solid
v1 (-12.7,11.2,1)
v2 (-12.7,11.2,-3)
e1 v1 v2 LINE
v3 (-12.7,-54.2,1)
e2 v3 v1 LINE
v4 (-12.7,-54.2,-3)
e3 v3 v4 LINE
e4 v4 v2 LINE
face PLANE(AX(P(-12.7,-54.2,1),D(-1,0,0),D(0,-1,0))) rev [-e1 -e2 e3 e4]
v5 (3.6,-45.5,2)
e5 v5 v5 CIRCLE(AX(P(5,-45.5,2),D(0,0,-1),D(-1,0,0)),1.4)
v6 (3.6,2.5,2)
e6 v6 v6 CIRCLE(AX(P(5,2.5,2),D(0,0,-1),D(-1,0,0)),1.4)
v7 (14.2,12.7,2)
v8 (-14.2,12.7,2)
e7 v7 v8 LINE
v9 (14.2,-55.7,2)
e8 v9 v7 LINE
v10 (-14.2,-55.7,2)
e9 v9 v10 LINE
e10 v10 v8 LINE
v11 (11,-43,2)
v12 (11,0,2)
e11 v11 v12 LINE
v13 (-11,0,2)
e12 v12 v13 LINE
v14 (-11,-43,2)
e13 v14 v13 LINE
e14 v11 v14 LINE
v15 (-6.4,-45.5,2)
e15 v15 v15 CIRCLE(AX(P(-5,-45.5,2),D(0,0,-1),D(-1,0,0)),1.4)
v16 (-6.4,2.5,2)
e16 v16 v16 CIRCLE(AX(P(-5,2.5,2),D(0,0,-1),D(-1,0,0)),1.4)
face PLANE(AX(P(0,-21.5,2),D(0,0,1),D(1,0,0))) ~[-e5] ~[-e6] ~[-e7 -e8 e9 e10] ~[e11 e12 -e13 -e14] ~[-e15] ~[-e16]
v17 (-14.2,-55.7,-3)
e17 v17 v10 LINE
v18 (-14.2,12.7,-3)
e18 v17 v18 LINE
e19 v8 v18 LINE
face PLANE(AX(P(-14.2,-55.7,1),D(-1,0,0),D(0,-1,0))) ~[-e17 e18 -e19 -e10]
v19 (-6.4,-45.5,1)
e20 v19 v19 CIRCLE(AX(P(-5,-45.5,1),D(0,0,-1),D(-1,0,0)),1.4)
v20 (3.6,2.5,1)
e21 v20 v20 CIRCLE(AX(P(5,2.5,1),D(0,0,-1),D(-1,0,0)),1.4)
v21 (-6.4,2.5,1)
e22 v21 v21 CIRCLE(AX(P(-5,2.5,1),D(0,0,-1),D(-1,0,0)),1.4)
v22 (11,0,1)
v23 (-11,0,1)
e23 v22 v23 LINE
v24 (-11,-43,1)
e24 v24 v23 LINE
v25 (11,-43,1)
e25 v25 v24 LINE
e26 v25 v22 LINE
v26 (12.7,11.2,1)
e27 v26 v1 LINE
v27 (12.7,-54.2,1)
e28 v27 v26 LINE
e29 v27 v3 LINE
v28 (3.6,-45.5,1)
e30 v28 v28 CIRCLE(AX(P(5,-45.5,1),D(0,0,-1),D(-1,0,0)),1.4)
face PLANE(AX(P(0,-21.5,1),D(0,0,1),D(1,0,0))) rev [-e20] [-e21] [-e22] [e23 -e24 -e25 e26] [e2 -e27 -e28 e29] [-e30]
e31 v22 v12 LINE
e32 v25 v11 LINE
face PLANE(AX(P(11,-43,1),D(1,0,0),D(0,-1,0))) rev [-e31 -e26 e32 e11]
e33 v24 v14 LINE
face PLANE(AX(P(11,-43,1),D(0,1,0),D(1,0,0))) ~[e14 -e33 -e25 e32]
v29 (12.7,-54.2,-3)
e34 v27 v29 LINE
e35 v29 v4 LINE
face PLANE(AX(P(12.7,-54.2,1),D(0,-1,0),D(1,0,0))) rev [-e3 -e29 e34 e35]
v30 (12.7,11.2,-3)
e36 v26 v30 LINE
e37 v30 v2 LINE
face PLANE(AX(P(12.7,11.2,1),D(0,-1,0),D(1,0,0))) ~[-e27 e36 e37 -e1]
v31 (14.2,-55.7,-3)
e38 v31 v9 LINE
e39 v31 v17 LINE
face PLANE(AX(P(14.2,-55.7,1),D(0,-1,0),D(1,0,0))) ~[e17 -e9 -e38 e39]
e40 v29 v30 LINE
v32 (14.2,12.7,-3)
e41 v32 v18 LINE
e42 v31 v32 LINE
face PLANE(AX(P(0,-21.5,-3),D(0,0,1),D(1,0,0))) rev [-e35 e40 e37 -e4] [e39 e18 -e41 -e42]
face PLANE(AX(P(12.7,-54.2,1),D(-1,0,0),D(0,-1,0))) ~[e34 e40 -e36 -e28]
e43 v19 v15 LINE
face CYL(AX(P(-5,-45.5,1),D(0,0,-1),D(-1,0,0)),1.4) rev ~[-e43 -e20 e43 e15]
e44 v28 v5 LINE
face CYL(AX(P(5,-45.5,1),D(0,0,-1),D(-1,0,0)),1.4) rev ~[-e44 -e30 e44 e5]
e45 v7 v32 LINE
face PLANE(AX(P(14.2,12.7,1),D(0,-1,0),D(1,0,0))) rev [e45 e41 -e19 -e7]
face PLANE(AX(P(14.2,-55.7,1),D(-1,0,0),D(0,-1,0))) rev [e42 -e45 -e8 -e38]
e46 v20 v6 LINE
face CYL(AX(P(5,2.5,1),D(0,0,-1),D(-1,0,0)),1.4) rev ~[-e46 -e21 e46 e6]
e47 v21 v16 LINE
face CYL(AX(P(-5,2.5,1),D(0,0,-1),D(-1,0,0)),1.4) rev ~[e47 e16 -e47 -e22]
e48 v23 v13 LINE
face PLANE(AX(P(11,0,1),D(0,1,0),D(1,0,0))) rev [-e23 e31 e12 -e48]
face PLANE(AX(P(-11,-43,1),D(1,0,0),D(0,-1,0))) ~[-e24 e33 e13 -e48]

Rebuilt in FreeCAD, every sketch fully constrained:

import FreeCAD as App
import Part
import Sketcher
from FreeCAD import Vector

doc = App.newDocument("Part")
body = doc.addObject("PartDesign::Body", "Body")

# Sketch on XY plane
sketch1 = doc.addObject("Sketcher::SketchObject", "Sketch")
body.addObject(sketch1)
sketch1.AttachmentSupport = (doc.XY_Plane, [""])
sketch1.MapMode = "FlatFace"
sketch1.AttachmentOffset = App.Placement(Vector(0, 0, -5), App.Rotation())
sketch1.addGeometry(Part.Circle(Vector(-5, 2.5, 0), Vector(0, 0, 1), 1.4), False)
sketch1.addConstraint([
    Sketcher.Constraint("Diameter", 0, 2.8),
    Sketcher.Constraint("DistanceX", 0, 3, -1, 1, 5.0),
    Sketcher.Constraint("DistanceY", -1, 1, 0, 3, 2.5),
])
pad1 = doc.addObject("PartDesign::Pad", "Pad")
body.addObject(pad1)
pad1.Profile = sketch1
pad1.Length = 10
body2 = doc.addObject("PartDesign::Body", "Body001")

# Sketch on XY plane
sketch2 = doc.addObject("Sketcher::SketchObject", "Sketch001")
body2.addObject(sketch2)
sketch2.AttachmentSupport = (doc.getObject("XY_Plane001"), [""])
sketch2.MapMode = "FlatFace"
sketch2.AttachmentOffset = App.Placement(Vector(0, 0, 1), App.Rotation())
sketch2.addGeometry([
    Part.LineSegment(Vector(-14.2, 12.7, 0), Vector(-14.2, -55.7, 0)),  # 0
    Part.LineSegment(Vector(-14.2, -55.7, 0), Vector(14.2, -55.7, 0)),  # 1
    Part.LineSegment(Vector(14.2, -55.7, 0), Vector(14.2, 12.7, 0)),  # 2
    Part.LineSegment(Vector(14.2, 12.7, 0), Vector(-14.2, 12.7, 0)),  # 3
    Part.LineSegment(Vector(12.7, -54.2, 0), Vector(-12.7, -54.2, 0)),  # 4
    Part.LineSegment(Vector(-12.7, -54.2, 0), Vector(-12.7, 11.2, 0)),  # 5
    Part.LineSegment(Vector(-12.7, 11.2, 0), Vector(12.7, 11.2, 0)),  # 6
    Part.LineSegment(Vector(12.7, 11.2, 0), Vector(12.7, -54.2, 0)),  # 7
], False)
sketch2.addConstraint([
    Sketcher.Constraint("Coincident", 0, 2, 1, 1),
    Sketcher.Constraint("Coincident", 1, 2, 2, 1),
    Sketcher.Constraint("Coincident", 2, 2, 3, 1),
    Sketcher.Constraint("Coincident", 3, 2, 0, 1),
    Sketcher.Constraint("Coincident", 4, 2, 5, 1),
    Sketcher.Constraint("Coincident", 5, 2, 6, 1),
    Sketcher.Constraint("Coincident", 6, 2, 7, 1),
    Sketcher.Constraint("Coincident", 7, 2, 4, 1),
    Sketcher.Constraint("Vertical", 0),
    Sketcher.Constraint("Horizontal", 1),
    Sketcher.Constraint("Vertical", 2),
    Sketcher.Constraint("Horizontal", 3),
    Sketcher.Constraint("Horizontal", 4),
    Sketcher.Constraint("Vertical", 5),
    Sketcher.Constraint("Horizontal", 6),
    Sketcher.Constraint("Vertical", 7),
    Sketcher.Constraint("DistanceX", 1, 1, 1, 2, 28.4),
    Sketcher.Constraint("DistanceX", 4, 2, 4, 1, 25.4),
    Sketcher.Constraint("DistanceY", 0, 2, 0, 1, 68.4),
    Sketcher.Constraint("DistanceY", 5, 1, 5, 2, 65.4),
    Sketcher.Constraint("DistanceX", 0, 2, -1, 1, 14.2),
    Sketcher.Constraint("DistanceY", 0, 2, -1, 1, 55.7),
    Sketcher.Constraint("DistanceX", 4, 2, -1, 1, 12.7),
    Sketcher.Constraint("DistanceY", 4, 2, -1, 1, 54.2),
])
pad2 = doc.addObject("PartDesign::Pad", "Pad001")
body2.addObject(pad2)
pad2.Profile = sketch2
pad2.Length = 4
pad2.Reversed = True
body3 = doc.addObject("PartDesign::Body", "Body002")

# Sketch on XY plane
sketch3 = doc.addObject("Sketcher::SketchObject", "Sketch002")
body3.addObject(sketch3)
sketch3.AttachmentSupport = (doc.getObject("XY_Plane002"), [""])
sketch3.MapMode = "FlatFace"
sketch3.AttachmentOffset = App.Placement(Vector(0, 0, 1), App.Rotation())
sketch3.addGeometry([
    Part.LineSegment(Vector(-14.2, 12.7, 0), Vector(-14.2, -55.7, 0)),  # 0
    Part.LineSegment(Vector(-14.2, -55.7, 0), Vector(14.2, -55.7, 0)),  # 1
    Part.LineSegment(Vector(14.2, -55.7, 0), Vector(14.2, 12.7, 0)),  # 2
    Part.LineSegment(Vector(14.2, 12.7, 0), Vector(-14.2, 12.7, 0)),  # 3
    Part.Circle(Vector(-5, -45.5, 0), Vector(0, 0, 1), 1.4),  # 4
    Part.Circle(Vector(5, -45.5, 0), Vector(0, 0, 1), 1.4),  # 5
    Part.LineSegment(Vector(11, -43, 0), Vector(-11, -43, 0)),  # 6
    Part.LineSegment(Vector(-11, -43, 0), Vector(-11, 0, 0)),  # 7
    Part.LineSegment(Vector(-11, 0, 0), Vector(11, 0, 0)),  # 8
    Part.LineSegment(Vector(11, 0, 0), Vector(11, -43, 0)),  # 9
    Part.Circle(Vector(-5, 2.5, 0), Vector(0, 0, 1), 1.4),  # 10
    Part.Circle(Vector(5, 2.5, 0), Vector(0, 0, 1), 1.4),  # 11
], False)
sketch3.addConstraint([
    Sketcher.Constraint("Coincident", 0, 2, 1, 1),
    Sketcher.Constraint("Coincident", 1, 2, 2, 1),
    Sketcher.Constraint("Coincident", 2, 2, 3, 1),
    Sketcher.Constraint("Coincident", 3, 2, 0, 1),
    Sketcher.Constraint("Coincident", 6, 2, 7, 1),
    Sketcher.Constraint("Coincident", 7, 2, 8, 1),
    Sketcher.Constraint("Coincident", 8, 2, 9, 1),
    Sketcher.Constraint("Coincident", 9, 2, 6, 1),
    Sketcher.Constraint("Vertical", 0),
    Sketcher.Constraint("Horizontal", 1),
    Sketcher.Constraint("Vertical", 2),
    Sketcher.Constraint("Horizontal", 3),
    Sketcher.Constraint("Horizontal", 6),
    Sketcher.Constraint("Vertical", 7),
    Sketcher.Constraint("Horizontal", 8),
    Sketcher.Constraint("Vertical", 9),
    Sketcher.Constraint("Equal", 4, 5),
    Sketcher.Constraint("Equal", 5, 10),
    Sketcher.Constraint("Equal", 10, 11),
    Sketcher.Constraint("Symmetric", 7, 2, 8, 2, -1, 1),
    Sketcher.Constraint("Symmetric", 4, 3, 5, 3, -2),
    Sketcher.Constraint("Symmetric", 10, 3, 11, 3, -2),
    Sketcher.Constraint("Vertical", 4, 3, 10, 3),
    Sketcher.Constraint("Diameter", 4, 2.8),
    Sketcher.Constraint("DistanceX", 6, 2, 6, 1, 22.0),
    Sketcher.Constraint("DistanceY", 7, 1, 7, 2, 43.0),
    Sketcher.Constraint("DistanceX", 1, 1, 1, 2, 28.4),
    Sketcher.Constraint("DistanceY", 0, 2, 0, 1, 68.4),
    Sketcher.Constraint("DistanceX", 4, 3, -1, 1, 5.0),
    Sketcher.Constraint("DistanceY", 4, 3, 10, 3, 48.0),
    Sketcher.Constraint("DistanceY", 4, 3, -1, 1, 45.5),
    Sketcher.Constraint("DistanceX", 0, 2, -1, 1, 14.2),
    Sketcher.Constraint("DistanceY", 0, 2, -1, 1, 55.7),
])
pad3 = doc.addObject("PartDesign::Pad", "Pad002")
body3.addObject(pad3)
pad3.Profile = sketch3
pad3.Length = 1
doc.recompute()

boolean = doc.addObject("PartDesign::Boolean", "Boolean")
body3.addObject(boolean)
boolean.Type = "Fuse"
boolean.addObjects([body2])
doc.recompute()

boolean2 = doc.addObject("PartDesign::Boolean", "Boolean001")
body3.addObject(boolean2)
boolean2.Type = "Cut"
boolean2.addObjects([body])
body4 = doc.addObject("PartDesign::Body", "Body003")
doc.recompute()

mirroring = doc.addObject("Part::Mirroring", "Mirroring")
mirroring.Source = body3
mirroring.Base = Vector(0, 0, 0)
mirroring.Normal = Vector(1, 0, 0)
body4.BaseFeature = mirroring
doc.recompute()
body3.Visibility = False
mirroring.Visibility = False

doc.recompute()
